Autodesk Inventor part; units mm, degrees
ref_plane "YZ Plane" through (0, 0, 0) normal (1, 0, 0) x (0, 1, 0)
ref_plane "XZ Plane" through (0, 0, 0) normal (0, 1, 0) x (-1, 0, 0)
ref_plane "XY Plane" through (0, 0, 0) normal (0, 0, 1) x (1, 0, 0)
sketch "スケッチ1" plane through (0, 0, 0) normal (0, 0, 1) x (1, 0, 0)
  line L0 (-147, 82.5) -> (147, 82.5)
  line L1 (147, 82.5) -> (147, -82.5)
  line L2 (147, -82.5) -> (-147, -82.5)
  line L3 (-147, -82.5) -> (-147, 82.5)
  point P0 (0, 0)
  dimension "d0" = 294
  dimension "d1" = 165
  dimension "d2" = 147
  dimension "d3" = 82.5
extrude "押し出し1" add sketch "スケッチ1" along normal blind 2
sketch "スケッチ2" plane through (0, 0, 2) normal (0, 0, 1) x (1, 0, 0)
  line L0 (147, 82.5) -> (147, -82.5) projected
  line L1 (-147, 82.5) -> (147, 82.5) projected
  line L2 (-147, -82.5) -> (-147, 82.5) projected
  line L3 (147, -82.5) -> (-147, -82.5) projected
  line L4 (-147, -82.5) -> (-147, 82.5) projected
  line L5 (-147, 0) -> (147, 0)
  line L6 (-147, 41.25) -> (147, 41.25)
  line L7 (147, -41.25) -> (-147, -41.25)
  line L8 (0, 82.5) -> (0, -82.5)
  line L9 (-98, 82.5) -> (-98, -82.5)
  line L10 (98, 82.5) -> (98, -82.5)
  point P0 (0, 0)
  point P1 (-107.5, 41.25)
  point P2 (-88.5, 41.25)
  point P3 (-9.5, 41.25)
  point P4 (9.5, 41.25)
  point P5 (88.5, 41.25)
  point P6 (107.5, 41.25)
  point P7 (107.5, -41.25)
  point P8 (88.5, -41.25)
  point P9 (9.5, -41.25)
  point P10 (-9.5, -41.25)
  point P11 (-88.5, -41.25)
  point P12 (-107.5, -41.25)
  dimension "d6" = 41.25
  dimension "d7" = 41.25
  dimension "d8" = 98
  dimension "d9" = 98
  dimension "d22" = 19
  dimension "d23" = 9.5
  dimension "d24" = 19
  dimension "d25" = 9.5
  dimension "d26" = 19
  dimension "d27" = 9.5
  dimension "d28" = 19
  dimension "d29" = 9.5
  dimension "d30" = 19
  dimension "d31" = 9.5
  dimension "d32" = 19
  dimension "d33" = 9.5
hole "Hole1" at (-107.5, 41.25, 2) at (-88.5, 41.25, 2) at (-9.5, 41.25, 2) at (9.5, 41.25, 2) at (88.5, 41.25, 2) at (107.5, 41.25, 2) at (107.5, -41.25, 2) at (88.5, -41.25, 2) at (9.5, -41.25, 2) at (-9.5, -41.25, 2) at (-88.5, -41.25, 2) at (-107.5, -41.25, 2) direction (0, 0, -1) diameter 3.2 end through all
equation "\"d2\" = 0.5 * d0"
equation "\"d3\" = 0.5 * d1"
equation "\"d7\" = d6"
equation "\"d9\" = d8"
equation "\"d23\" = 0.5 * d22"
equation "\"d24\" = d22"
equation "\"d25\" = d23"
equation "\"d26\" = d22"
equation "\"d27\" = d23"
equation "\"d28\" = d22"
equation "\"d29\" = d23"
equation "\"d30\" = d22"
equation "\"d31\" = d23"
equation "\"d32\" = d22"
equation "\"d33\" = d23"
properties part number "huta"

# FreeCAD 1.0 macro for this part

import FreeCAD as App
import Part
import Sketcher
from FreeCAD import Vector
Q = App.Units.Quantity


def add_polygon(sketch, points):
    """Adds a closed chain of lines whose ends are joined by coincident constraints."""
    first, n = sketch.GeometryCount, len(points)
    for a, b in zip(points, points[1:] + points[:1]):
        sketch.addGeometry(Part.LineSegment(App.Vector(*a, 0), App.Vector(*b, 0)), False)
    for i in range(n):
        sketch.addConstraint(Sketcher.Constraint("Coincident", first + i, 2, first + (i + 1) % n, 1))

doc = App.newDocument("Part")
body = doc.addObject("PartDesign::Body", "Body")

# Sketch on XY plane
sketch1 = body.newObject("Sketcher::SketchObject", "Sketch")
sketch1.AttachmentSupport = (doc.getObject("XY_Plane"), [""])
sketch1.MapMode = "FlatFace"
add_polygon(sketch1, [(147, 82), (-147, 82), (-147, -82), (147, -82)])  # lines 0-3
sketch1.addConstraint(Sketcher.Constraint("Horizontal", 0))
sketch1.addConstraint(Sketcher.Constraint("Vertical", 1))
sketch1.addConstraint(Sketcher.Constraint("Horizontal", 2))
sketch1.addConstraint(Sketcher.Constraint("Vertical", 3))
sketch1.addConstraint(Sketcher.Constraint("Symmetric", 0, 2, 2, 2, -1, 1))
sketch1.addConstraint(Sketcher.Constraint("DistanceX", 0, 2, 0, 1, Q("294 mm")))
sketch1.addConstraint(Sketcher.Constraint("DistanceY", 1, 2, 1, 1, Q("165 mm")))
pad1 = body.newObject("PartDesign::Pad", "Pad")
pad1.Profile = sketch1
pad1.Length = 2

# Sketch on XY plane
sketch2 = body.newObject("Sketcher::SketchObject", "Sketch001")
sketch2.AttachmentSupport = (doc.getObject("XY_Plane"), [""])
sketch2.MapMode = "FlatFace"
sketch2.AttachmentOffset = App.Placement(Vector(0, 0, 2), App.Rotation())
sketch2.addGeometry(Part.Circle(Vector(-107.5, 41.2, 0), Vector(0, 0, 1), 1.6), False)
sketch2.addGeometry(Part.Circle(Vector(-88.5, 41.2, 0), Vector(0, 0, 1), 1.6), False)
sketch2.addGeometry(Part.Circle(Vector(-9.5, 41.2, 0), Vector(0, 0, 1), 1.6), False)
sketch2.addGeometry(Part.Circle(Vector(9.5, 41.2, 0), Vector(0, 0, 1), 1.6), False)
sketch2.addGeometry(Part.Circle(Vector(88.5, 41.2, 0), Vector(0, 0, 1), 1.6), False)
sketch2.addGeometry(Part.Circle(Vector(107.5, 41.2, 0), Vector(0, 0, 1), 1.6), False)
sketch2.addGeometry(Part.Circle(Vector(107.5, -41.2, 0), Vector(0, 0, 1), 1.6), False)
sketch2.addGeometry(Part.Circle(Vector(88.5, -41.2, 0), Vector(0, 0, 1), 1.6), False)
sketch2.addGeometry(Part.Circle(Vector(9.5, -41.2, 0), Vector(0, 0, 1), 1.6), False)
sketch2.addGeometry(Part.Circle(Vector(-9.5, -41.2, 0), Vector(0, 0, 1), 1.6), False)
sketch2.addGeometry(Part.Circle(Vector(-88.5, -41.2, 0), Vector(0, 0, 1), 1.6), False)
sketch2.addGeometry(Part.Circle(Vector(-107.5, -41.2, 0), Vector(0, 0, 1), 1.6), False)
sketch2.addConstraint(Sketcher.Constraint("Equal", 0, 1))
sketch2.addConstraint(Sketcher.Constraint("Equal", 1, 2))
sketch2.addConstraint(Sketcher.Constraint("Equal", 2, 3))
sketch2.addConstraint(Sketcher.Constraint("Equal", 3, 4))
sketch2.addConstraint(Sketcher.Constraint("Equal", 4, 5))
sketch2.addConstraint(Sketcher.Constraint("Equal", 5, 6))
sketch2.addConstraint(Sketcher.Constraint("Equal", 6, 7))
sketch2.addConstraint(Sketcher.Constraint("Equal", 7, 8))
sketch2.addConstraint(Sketcher.Constraint("Equal", 8, 9))
sketch2.addConstraint(Sketcher.Constraint("Equal", 9, 10))
sketch2.addConstraint(Sketcher.Constraint("Equal", 10, 11))
sketch2.addConstraint(Sketcher.Constraint("Symmetric", 0, 3, 6, 3, -1, 1))
sketch2.addConstraint(Sketcher.Constraint("Symmetric", 1, 3, 7, 3, -1, 1))
sketch2.addConstraint(Sketcher.Constraint("Symmetric", 2, 3, 8, 3, -1, 1))
sketch2.addConstraint(Sketcher.Constraint("Symmetric", 3, 3, 9, 3, -1, 1))
sketch2.addConstraint(Sketcher.Constraint("Symmetric", 4, 3, 10, 3, -1, 1))
sketch2.addConstraint(Sketcher.Constraint("Symmetric", 5, 3, 11, 3, -1, 1))
sketch2.addConstraint(Sketcher.Constraint("Symmetric", 2, 3, 3, 3, -2))
sketch2.addConstraint(Sketcher.Constraint("Symmetric", 1, 3, 4, 3, -2))
sketch2.addConstraint(Sketcher.Constraint("Symmetric", 0, 3, 5, 3, -2))
sketch2.addConstraint(Sketcher.Constraint("Horizontal", 0, 3, 1, 3))
sketch2.addConstraint(Sketcher.Constraint("Horizontal", 1, 3, 2, 3))
sketch2.addConstraint(Sketcher.Constraint("Diameter", 0, Q("3.2 mm")))
sketch2.addConstraint(Sketcher.Constraint("DistanceX", 0, 3, 1, 3, Q("19 mm")))
sketch2.addConstraint(Sketcher.Constraint("DistanceX", 1, 3, 2, 3, Q("79 mm")))
sketch2.addConstraint(Sketcher.Constraint("DistanceX", 2, 3, 3, 3, Q("19 mm")))
sketch2.addConstraint(Sketcher.Constraint("DistanceY", 6, 3, 5, 3, Q("82.5 mm")))
doc.recompute()
hole = body.newObject("PartDesign::Hole", "Hole")
hole.Profile = sketch2
hole.ThreadType = "None"
hole.Diameter = 3.2
hole.DepthType = "ThroughAll"

doc.recompute()
